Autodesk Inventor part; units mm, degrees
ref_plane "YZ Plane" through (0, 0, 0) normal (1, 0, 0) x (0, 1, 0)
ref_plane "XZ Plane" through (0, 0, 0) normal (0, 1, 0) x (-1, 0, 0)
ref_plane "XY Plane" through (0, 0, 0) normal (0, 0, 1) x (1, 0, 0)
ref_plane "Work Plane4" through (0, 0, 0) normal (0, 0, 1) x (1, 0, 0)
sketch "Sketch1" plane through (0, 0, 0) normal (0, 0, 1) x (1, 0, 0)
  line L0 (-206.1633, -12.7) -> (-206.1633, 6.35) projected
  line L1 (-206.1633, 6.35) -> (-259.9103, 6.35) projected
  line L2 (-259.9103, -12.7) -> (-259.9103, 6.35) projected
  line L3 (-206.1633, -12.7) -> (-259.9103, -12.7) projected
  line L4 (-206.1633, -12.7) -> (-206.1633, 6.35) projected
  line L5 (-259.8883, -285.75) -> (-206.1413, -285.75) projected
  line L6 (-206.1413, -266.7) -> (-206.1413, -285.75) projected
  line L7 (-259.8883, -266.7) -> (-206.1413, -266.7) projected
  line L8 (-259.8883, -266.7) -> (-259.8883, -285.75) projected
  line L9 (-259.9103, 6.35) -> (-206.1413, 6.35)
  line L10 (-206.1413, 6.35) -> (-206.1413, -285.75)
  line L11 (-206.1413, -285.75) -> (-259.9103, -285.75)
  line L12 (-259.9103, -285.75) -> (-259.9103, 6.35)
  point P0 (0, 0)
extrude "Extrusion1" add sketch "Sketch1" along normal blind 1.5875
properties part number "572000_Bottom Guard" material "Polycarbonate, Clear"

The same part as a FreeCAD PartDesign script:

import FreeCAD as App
import Part
import Sketcher
Q = App.Units.Quantity

doc = App.newDocument("Part")
body = doc.addObject("PartDesign::Body", "Body")

# Sketch on XY plane
sketch1 = body.newObject("Sketcher::SketchObject", "Sketch")
sketch1.AttachmentSupport = (doc.getObject("XY_Plane"), [""])
sketch1.MapMode = "FlatFace"
sketch1.addGeometry([
    Part.LineSegment(App.Vector(-259.9103, 6.35, 0), App.Vector(-259.9103, -285.75, 0)),
    Part.LineSegment(App.Vector(-259.9103, -285.75, 0), App.Vector(-206.1413, -285.75, 0)),
    Part.LineSegment(App.Vector(-206.1413, -285.75, 0), App.Vector(-206.1413, 6.35, 0)),
    Part.LineSegment(App.Vector(-206.1413, 6.35, 0), App.Vector(-259.9103, 6.35, 0)),
], False)
sketch1.addConstraint([
    Sketcher.Constraint("Coincident", 0, 2, 1, 1),
    Sketcher.Constraint("Coincident", 1, 2, 2, 1),
    Sketcher.Constraint("Coincident", 2, 2, 3, 1),
    Sketcher.Constraint("Coincident", 3, 2, 0, 1),
    Sketcher.Constraint("Vertical", 0),
    Sketcher.Constraint("Horizontal", 1),
    Sketcher.Constraint("Vertical", 2),
    Sketcher.Constraint("Horizontal", 3),
    Sketcher.Constraint("DistanceY", 0, 2, 0, 1, Q("11.5 in")),
    Sketcher.Constraint("DistanceY", 0, 2, -1, 1, Q("11.25 in")),
    Sketcher.Constraint("DistanceX", 1, 1, 1, 2, Q("2.1169 in")),
    Sketcher.Constraint("DistanceX", 0, 2, -1, 1, Q("10.2327 in")),
])
pad1 = body.newObject("PartDesign::Pad", "Pad")
pad1.Profile = sketch1
pad1.Length = Q("0.0625 in")

doc.recompute()
